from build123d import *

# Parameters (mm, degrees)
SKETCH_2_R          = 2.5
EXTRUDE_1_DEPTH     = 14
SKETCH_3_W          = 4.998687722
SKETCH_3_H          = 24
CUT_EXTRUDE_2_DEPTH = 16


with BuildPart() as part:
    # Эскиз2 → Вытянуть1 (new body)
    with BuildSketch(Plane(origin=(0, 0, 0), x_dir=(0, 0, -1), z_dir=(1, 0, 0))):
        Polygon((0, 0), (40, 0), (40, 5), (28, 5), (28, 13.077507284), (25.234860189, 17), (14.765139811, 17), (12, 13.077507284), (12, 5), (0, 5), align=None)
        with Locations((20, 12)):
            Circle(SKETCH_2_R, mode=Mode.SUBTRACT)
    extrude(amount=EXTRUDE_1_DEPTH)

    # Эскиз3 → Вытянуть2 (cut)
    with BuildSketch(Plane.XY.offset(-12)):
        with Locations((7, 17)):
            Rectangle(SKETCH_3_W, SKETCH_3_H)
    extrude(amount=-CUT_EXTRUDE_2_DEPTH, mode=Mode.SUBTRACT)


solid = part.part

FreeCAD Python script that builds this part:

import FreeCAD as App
import Part
import Sketcher
from FreeCAD import Vector


def add_polygon(sketch, points):
    """Adds a closed chain of lines whose ends are joined by coincident constraints."""
    first, n = sketch.GeometryCount, len(points)
    for a, b in zip(points, points[1:] + points[:1]):
        sketch.addGeometry(Part.LineSegment(App.Vector(*a, 0), App.Vector(*b, 0)), False)
    for i in range(n):
        sketch.addConstraint(Sketcher.Constraint("Coincident", first + i, 2, first + (i + 1) % n, 1))

doc = App.newDocument("Part")
body = doc.addObject("PartDesign::Body", "Body")

sketch1 = body.newObject("Sketcher::SketchObject", "Sketch")
sketch1.AttachmentSupport = (doc.getObject("YZ_Plane"), [""])
sketch1.MapMode = "FlatFace"
add_polygon(sketch1, [(0, 0), (0, -40), (5, -40), (5, -28), (13.1, -28), (17, -25.2), (17, -14.8), (13.1, -12), (5, -12), (5, 0)])
sketch1.addGeometry(Part.Circle(Vector(12, -20, 0), Vector(0, 0, 1), 2.5), False)
sketch1.addConstraint(Sketcher.Constraint("Vertical", 0))
sketch1.addConstraint(Sketcher.Constraint("Horizontal", 1))
sketch1.addConstraint(Sketcher.Constraint("Vertical", 2))
sketch1.addConstraint(Sketcher.Constraint("Horizontal", 3))
sketch1.addConstraint(Sketcher.Constraint("Vertical", 5))
sketch1.addConstraint(Sketcher.Constraint("Horizontal", 7))
sketch1.addConstraint(Sketcher.Constraint("Vertical", 8))
sketch1.addConstraint(Sketcher.Constraint("Horizontal", 9))
sketch1.addConstraint(Sketcher.Constraint("Coincident", 9, 2, -1, 1))
sketch1.addConstraint(Sketcher.Constraint("Vertical", 3, 2, 6, 2))
sketch1.addConstraint(Sketcher.Constraint("Vertical", 2, 2, 7, 2))
sketch1.addConstraint(Sketcher.Constraint("Equal", 2, 8))
sketch1.addConstraint(Sketcher.Constraint("Equal", 4, 6))
sketch1.addConstraint(Sketcher.Constraint("Diameter", 10, 5.0))
sketch1.addConstraint(Sketcher.Constraint("DistanceX", 1, 1, 1, 2, 5.0))
sketch1.addConstraint(Sketcher.Constraint("DistanceY", 0, 2, 0, 1, 40.0))
sketch1.addConstraint(Sketcher.Constraint("DistanceY", 2, 1, 2, 2, 12.0))
sketch1.addConstraint(Sketcher.Constraint("DistanceX", -1, 1, 10, 3, 12.0))
sketch1.addConstraint(Sketcher.Constraint("DistanceY", 10, 3, -1, 1, 20.0))
sketch1.addConstraint(Sketcher.Constraint("DistanceX", -1, 1, 4, 2, 17.0))
sketch1.addConstraint(Sketcher.Constraint("DistanceY", 5, 1, 5, 2, 10.46972))
sketch1.addConstraint(Sketcher.Constraint("Distance", 4, 4.799161))
pad1 = body.newObject("PartDesign::Pad", "Pad")
pad1.Profile = sketch1
pad1.Length = 14

sketch2 = body.newObject("Sketcher::SketchObject", "Sketch001")
sketch2.AttachmentSupport = (doc.getObject("XY_Plane"), [""])
sketch2.MapMode = "FlatFace"
sketch2.AttachmentOffset = App.Placement(Vector(0, 0, -12), App.Rotation())
add_polygon(sketch2, [(4.5, 29), (4.5, 5), (9.5, 5), (9.5, 29)])
sketch2.addConstraint(Sketcher.Constraint("Vertical", 0))
sketch2.addConstraint(Sketcher.Constraint("Horizontal", 1))
sketch2.addConstraint(Sketcher.Constraint("Vertical", 2))
sketch2.addConstraint(Sketcher.Constraint("Horizontal", 3))
sketch2.addConstraint(Sketcher.Constraint("DistanceY", 0, 2, 0, 1, 24.0))
sketch2.addConstraint(Sketcher.Constraint("DistanceY", -1, 1, 0, 2, 5.0))
sketch2.addConstraint(Sketcher.Constraint("DistanceX", 1, 1, 1, 2, 4.998688))
sketch2.addConstraint(Sketcher.Constraint("DistanceX", -1, 1, 0, 2, 4.500656))
pocket1 = body.newObject("PartDesign::Pocket", "Pocket")
pocket1.Profile = sketch2
pocket1.Length = 16

doc.recompute()
